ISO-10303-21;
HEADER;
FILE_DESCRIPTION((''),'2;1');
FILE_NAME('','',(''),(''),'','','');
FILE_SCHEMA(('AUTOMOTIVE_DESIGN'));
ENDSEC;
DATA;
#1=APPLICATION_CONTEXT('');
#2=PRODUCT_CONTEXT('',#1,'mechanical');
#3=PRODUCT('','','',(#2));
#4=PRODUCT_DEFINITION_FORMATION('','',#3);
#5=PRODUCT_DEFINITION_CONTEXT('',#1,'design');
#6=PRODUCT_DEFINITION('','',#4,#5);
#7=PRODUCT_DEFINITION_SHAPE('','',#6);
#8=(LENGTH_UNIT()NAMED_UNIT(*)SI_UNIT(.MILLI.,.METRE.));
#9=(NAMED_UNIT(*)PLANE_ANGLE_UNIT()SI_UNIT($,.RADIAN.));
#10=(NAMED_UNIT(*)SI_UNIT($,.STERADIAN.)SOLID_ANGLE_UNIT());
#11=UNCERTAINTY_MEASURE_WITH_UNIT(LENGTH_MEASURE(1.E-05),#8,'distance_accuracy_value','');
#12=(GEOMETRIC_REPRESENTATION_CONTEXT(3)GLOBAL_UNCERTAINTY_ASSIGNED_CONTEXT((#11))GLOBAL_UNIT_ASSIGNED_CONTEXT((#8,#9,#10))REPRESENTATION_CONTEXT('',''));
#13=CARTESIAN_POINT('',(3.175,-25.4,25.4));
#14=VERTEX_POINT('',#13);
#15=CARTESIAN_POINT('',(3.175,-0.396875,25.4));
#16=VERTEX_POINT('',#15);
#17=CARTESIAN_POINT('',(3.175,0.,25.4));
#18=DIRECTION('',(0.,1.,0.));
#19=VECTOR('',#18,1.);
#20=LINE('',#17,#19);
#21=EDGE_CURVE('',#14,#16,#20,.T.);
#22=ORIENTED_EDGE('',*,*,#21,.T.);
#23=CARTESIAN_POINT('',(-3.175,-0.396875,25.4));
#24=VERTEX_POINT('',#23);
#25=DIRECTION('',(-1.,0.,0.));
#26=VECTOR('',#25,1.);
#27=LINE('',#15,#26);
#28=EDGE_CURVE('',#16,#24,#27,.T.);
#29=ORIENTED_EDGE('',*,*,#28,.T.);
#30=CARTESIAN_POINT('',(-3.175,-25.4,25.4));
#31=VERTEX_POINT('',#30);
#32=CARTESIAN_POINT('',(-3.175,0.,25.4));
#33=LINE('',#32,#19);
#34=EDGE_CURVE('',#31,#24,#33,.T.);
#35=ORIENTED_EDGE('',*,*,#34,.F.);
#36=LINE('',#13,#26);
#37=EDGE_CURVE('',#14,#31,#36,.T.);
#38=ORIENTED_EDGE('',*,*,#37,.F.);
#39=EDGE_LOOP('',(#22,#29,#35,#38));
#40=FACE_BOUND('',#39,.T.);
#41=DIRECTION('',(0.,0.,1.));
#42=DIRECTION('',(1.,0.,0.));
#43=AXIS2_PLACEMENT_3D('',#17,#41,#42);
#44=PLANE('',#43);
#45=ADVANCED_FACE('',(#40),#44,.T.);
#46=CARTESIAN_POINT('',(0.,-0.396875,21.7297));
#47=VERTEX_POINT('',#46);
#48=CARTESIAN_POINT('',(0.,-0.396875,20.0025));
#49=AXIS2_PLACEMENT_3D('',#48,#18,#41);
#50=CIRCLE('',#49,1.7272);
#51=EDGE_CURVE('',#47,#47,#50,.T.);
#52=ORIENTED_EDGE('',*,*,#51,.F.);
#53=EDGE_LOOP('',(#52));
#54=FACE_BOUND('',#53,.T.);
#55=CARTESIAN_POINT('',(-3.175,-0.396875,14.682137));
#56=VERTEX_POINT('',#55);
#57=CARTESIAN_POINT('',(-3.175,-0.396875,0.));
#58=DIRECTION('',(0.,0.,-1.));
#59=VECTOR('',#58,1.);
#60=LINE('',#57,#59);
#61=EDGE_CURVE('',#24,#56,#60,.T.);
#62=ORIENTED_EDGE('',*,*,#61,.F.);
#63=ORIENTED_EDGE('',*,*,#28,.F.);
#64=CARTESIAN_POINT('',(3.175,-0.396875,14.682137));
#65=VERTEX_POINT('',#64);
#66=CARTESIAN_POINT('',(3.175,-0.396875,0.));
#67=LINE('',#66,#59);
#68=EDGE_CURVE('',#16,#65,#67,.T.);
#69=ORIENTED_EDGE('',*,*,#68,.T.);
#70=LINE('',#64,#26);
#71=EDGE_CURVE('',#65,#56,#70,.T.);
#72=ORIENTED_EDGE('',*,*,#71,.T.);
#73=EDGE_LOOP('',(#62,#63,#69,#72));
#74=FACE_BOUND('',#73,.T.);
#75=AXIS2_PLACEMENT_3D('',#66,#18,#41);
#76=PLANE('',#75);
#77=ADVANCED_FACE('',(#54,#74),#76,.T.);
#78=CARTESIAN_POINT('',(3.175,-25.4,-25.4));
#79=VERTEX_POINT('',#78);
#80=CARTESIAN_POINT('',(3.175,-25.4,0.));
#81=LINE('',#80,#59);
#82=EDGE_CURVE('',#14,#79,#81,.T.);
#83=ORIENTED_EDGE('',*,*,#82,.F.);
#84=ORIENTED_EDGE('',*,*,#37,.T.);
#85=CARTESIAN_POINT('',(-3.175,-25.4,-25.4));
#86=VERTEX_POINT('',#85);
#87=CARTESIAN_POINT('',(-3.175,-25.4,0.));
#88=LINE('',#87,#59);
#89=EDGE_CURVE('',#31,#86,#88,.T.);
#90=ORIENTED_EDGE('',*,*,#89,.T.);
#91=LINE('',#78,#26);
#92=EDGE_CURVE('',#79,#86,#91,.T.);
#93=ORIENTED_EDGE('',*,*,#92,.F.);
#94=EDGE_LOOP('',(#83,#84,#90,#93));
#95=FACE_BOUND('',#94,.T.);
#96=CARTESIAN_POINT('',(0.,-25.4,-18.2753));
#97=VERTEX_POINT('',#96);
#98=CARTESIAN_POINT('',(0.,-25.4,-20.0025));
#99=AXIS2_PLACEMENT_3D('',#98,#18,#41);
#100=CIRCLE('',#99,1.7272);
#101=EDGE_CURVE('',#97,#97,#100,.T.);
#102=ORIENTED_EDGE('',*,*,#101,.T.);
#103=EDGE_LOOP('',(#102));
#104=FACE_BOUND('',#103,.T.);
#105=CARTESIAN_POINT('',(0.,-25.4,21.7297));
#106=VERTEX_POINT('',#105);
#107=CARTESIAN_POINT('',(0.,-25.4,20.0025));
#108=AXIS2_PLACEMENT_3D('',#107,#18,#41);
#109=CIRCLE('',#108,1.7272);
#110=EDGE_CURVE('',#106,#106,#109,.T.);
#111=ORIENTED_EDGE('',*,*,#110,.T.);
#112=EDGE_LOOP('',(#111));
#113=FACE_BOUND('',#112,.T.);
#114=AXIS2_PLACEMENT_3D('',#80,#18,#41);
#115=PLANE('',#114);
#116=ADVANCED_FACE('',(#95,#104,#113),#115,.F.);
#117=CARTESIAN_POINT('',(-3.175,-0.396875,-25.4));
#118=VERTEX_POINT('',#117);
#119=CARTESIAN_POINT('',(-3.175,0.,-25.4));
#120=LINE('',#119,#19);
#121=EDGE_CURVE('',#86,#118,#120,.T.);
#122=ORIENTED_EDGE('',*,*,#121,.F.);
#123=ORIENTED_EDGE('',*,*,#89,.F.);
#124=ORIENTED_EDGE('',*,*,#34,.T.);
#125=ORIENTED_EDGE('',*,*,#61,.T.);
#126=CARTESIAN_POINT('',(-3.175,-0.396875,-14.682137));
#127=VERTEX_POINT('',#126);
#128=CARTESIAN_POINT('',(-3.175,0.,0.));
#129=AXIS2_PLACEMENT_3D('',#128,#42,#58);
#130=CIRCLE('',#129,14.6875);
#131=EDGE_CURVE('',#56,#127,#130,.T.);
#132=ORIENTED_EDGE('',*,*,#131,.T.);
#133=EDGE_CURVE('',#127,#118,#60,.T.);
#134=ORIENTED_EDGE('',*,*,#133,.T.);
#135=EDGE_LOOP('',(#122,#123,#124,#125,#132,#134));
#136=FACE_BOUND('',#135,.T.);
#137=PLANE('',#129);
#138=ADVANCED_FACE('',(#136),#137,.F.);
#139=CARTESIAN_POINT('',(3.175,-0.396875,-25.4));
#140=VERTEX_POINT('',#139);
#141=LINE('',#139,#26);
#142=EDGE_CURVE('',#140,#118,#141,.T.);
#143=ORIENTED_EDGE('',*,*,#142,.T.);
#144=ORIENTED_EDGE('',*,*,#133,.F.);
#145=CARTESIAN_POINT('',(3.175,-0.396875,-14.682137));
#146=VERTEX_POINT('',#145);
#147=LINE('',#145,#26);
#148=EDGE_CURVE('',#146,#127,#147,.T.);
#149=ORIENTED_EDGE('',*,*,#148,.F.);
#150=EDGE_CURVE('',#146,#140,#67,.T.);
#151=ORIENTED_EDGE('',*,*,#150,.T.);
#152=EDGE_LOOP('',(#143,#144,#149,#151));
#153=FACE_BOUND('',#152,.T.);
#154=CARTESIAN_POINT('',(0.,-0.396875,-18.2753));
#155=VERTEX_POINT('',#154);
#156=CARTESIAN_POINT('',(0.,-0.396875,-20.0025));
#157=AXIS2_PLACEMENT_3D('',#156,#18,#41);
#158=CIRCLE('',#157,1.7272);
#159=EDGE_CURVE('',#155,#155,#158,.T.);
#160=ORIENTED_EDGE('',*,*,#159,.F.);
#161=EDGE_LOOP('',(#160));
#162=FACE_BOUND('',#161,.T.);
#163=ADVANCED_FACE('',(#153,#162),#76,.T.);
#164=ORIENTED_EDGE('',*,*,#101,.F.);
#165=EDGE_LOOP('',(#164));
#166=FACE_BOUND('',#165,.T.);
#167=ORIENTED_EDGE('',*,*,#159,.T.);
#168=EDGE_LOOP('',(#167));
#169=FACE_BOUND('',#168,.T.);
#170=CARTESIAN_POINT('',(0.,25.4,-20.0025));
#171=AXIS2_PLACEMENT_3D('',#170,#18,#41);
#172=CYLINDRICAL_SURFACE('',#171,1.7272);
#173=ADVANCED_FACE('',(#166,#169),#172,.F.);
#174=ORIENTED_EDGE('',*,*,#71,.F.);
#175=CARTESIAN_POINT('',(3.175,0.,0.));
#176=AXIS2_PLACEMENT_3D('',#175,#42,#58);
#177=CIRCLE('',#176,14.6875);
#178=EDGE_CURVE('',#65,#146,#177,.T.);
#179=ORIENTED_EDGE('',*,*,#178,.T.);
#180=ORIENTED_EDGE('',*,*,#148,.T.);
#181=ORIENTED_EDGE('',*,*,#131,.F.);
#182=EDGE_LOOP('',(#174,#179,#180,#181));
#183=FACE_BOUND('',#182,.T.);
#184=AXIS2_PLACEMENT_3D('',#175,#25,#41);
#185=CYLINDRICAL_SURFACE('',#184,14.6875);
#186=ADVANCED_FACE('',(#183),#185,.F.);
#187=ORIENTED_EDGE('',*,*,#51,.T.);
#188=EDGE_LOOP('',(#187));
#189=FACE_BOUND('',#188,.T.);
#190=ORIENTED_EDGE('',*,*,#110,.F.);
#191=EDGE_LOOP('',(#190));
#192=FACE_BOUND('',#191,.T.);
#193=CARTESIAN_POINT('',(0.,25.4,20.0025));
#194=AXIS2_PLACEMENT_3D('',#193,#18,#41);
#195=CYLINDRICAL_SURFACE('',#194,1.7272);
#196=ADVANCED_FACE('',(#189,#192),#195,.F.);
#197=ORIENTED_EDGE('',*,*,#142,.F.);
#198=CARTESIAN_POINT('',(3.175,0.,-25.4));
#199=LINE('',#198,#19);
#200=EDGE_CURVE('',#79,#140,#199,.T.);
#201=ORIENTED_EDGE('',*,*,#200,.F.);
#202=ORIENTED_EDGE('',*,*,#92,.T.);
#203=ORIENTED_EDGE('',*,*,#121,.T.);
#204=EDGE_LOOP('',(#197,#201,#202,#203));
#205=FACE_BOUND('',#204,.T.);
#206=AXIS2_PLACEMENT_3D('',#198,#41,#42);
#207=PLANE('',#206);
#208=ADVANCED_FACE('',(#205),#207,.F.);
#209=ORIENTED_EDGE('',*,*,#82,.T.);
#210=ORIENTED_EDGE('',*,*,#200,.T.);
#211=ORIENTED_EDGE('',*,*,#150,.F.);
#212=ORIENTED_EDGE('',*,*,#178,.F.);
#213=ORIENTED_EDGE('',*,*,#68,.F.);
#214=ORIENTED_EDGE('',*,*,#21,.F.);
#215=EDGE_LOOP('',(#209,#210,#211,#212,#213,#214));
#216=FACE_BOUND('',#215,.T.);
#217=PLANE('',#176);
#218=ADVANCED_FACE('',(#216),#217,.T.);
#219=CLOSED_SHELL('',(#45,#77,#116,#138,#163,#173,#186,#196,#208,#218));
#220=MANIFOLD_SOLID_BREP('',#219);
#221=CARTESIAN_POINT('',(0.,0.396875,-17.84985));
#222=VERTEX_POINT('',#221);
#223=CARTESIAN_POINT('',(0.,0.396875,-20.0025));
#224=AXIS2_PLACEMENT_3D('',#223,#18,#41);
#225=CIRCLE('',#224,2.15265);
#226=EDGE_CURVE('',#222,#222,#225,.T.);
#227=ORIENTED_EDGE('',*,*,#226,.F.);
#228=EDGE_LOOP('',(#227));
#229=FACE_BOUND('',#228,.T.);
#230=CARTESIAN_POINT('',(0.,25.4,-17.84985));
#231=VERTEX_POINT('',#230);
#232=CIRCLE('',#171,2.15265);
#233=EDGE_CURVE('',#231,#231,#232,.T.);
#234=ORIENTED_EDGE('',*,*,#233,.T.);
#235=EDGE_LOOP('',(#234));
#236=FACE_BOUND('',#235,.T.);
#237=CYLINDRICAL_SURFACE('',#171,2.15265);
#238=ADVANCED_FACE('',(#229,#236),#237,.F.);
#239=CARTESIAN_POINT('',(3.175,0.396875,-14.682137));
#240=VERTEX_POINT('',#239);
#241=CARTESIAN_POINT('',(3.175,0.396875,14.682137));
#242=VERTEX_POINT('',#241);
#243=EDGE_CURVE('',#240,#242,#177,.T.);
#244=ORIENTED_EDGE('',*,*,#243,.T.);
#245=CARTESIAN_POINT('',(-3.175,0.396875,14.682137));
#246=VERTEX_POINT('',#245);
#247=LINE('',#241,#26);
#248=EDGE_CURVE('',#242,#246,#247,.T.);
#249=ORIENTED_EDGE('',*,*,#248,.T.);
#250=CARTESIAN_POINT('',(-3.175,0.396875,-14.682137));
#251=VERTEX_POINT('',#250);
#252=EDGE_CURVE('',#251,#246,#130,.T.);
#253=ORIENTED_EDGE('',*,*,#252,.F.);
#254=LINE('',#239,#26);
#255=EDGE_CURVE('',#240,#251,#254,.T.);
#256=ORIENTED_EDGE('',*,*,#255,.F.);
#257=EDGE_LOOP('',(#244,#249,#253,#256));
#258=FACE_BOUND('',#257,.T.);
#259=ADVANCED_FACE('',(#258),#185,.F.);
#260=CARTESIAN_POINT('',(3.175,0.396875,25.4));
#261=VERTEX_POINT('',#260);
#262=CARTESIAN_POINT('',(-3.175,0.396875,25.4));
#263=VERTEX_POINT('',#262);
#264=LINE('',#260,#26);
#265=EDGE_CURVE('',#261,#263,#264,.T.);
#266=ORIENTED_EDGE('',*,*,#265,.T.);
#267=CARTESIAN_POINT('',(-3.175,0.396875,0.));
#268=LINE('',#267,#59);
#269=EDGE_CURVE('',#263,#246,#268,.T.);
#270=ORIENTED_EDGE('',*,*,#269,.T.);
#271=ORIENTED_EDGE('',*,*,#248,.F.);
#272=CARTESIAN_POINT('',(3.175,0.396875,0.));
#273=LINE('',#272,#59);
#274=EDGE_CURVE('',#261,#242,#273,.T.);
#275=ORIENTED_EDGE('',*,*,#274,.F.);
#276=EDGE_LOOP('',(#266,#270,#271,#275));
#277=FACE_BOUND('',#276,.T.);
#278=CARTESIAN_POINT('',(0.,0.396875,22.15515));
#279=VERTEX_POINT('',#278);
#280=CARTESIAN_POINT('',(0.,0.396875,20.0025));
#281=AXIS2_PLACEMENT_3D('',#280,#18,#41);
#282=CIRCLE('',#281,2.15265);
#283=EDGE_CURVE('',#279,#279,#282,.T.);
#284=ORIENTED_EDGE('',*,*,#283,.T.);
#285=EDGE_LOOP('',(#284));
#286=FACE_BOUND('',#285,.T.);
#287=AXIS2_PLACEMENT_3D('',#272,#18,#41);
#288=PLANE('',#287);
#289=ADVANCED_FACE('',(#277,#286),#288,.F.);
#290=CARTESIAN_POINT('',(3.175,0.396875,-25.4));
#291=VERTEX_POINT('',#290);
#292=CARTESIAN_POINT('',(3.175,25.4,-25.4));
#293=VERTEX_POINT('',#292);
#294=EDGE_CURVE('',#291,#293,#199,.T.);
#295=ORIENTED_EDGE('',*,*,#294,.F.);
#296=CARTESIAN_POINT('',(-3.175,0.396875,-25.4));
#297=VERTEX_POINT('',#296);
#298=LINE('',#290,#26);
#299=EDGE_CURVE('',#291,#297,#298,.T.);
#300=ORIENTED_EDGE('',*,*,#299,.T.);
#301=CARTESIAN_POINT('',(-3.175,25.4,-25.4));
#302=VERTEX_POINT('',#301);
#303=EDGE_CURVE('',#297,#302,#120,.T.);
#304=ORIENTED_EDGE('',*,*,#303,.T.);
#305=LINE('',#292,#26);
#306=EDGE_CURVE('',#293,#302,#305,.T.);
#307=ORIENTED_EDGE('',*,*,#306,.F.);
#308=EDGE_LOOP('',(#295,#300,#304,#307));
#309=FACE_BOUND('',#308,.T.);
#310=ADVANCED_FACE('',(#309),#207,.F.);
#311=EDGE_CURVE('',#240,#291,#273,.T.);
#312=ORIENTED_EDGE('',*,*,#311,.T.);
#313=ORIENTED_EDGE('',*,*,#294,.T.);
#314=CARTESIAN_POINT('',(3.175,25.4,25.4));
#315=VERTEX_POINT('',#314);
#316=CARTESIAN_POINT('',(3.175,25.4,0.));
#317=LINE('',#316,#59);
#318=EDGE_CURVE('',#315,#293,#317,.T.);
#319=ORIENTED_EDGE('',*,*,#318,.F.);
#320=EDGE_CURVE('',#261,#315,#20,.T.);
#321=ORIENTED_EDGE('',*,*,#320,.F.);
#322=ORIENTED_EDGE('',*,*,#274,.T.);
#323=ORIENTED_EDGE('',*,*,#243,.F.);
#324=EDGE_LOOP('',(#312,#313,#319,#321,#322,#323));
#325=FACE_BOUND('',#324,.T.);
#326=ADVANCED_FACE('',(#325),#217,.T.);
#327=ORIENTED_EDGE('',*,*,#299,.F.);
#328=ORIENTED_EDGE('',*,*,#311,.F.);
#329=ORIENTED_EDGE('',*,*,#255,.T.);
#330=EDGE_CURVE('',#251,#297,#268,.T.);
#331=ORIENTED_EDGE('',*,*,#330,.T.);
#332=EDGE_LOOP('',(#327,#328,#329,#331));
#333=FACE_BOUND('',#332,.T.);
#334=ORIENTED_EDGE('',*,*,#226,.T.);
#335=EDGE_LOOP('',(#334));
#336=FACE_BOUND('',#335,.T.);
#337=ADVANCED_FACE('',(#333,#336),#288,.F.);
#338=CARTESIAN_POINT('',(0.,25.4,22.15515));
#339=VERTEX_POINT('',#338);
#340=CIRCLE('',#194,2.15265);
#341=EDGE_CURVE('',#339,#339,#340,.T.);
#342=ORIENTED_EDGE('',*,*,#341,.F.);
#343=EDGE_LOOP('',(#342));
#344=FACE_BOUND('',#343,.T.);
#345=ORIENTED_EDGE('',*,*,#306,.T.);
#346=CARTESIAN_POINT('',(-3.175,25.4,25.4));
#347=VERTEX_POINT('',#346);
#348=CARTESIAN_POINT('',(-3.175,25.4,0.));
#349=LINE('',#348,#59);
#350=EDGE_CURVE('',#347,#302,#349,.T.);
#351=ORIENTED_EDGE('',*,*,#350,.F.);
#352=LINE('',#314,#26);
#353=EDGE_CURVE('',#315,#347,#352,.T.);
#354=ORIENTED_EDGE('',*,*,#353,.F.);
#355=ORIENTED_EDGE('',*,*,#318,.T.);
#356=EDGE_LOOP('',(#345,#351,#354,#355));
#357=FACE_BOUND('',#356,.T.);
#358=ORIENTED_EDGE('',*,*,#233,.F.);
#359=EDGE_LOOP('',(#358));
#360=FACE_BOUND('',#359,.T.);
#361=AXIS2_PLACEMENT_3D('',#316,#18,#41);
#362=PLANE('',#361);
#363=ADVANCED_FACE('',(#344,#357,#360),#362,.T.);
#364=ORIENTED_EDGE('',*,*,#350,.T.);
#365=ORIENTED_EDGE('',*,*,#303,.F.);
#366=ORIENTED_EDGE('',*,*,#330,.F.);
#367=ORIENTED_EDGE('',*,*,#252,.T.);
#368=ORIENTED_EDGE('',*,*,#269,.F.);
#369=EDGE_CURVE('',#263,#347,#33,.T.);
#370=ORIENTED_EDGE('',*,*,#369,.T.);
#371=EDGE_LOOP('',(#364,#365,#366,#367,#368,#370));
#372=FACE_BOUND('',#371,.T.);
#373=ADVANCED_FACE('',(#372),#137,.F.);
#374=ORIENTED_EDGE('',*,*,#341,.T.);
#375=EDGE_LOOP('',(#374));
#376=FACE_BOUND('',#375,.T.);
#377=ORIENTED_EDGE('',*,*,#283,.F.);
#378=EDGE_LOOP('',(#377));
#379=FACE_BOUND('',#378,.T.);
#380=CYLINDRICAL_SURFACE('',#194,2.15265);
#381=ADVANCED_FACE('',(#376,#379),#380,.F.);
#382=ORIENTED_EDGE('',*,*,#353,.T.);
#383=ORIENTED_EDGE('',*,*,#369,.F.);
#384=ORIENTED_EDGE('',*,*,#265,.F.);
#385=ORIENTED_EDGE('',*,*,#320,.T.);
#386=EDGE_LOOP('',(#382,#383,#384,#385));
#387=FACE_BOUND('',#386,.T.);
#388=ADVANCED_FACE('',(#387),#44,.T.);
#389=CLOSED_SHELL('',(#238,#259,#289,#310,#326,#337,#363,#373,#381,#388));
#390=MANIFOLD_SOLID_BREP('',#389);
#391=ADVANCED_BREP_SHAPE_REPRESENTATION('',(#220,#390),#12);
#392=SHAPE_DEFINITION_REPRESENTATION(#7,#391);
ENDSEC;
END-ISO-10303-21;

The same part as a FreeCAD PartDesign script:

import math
import FreeCAD as App
import Part
import Sketcher
Q = App.Units.Quantity


def add_polygon(sketch, points):
    """Adds a closed chain of lines whose ends are joined by coincident constraints."""
    first, n = sketch.GeometryCount, len(points)
    for a, b in zip(points, points[1:] + points[:1]):
        sketch.addGeometry(Part.LineSegment(App.Vector(*a, 0), App.Vector(*b, 0)), False)
    for i in range(n):
        sketch.addConstraint(Sketcher.Constraint("Coincident", first + i, 2, first + (i + 1) % n, 1))

doc = App.newDocument("Part")
body = doc.addObject("PartDesign::Body", "Body")

# Sketch on YZ plane
sketch1 = body.newObject("Sketcher::SketchObject", "Sketch")
sketch1.AttachmentSupport = (doc.getObject("YZ_Plane"), [""])
sketch1.MapMode = "FlatFace"
sketch1.addGeometry([
    Part.LineSegment(App.Vector(25, 25, 0), App.Vector(0, 25, 0)),  # 0
    Part.LineSegment(App.Vector(0, 25, 0), App.Vector(0, 15, 0)),  # 1
    Part.ArcOfCircle(Part.Circle(App.Vector(0, 0, 0), App.Vector(0, 0, 1), 15), math.radians(-88), math.radians(88)),  # 2
    Part.LineSegment(App.Vector(0, -15, 0), App.Vector(0, -25, 0)),  # 3
    Part.LineSegment(App.Vector(0, -25, 0), App.Vector(25, -25, 0)),  # 4
    Part.LineSegment(App.Vector(25, -25, 0), App.Vector(25, 25, 0)),  # 5
], False)
sketch1.addConstraint([
    Sketcher.Constraint("Coincident", 0, 2, 1, 1),
    Sketcher.Constraint("Coincident", 1, 2, 2, 2),
    Sketcher.Constraint("Coincident", 2, 1, 3, 1),
    Sketcher.Constraint("Coincident", 3, 2, 4, 1),
    Sketcher.Constraint("Coincident", 4, 2, 5, 1),
    Sketcher.Constraint("Coincident", 5, 2, 0, 1),
    Sketcher.Constraint("Horizontal", 0),
    Sketcher.Constraint("Vertical", 1),
    Sketcher.Constraint("Vertical", 3),
    Sketcher.Constraint("Horizontal", 4),
    Sketcher.Constraint("Vertical", 5),
    Sketcher.Constraint("Coincident", 2, 3, -1, 1),
    Sketcher.Constraint("Symmetric", 0, 2, 3, 2, -1),
    Sketcher.Constraint("DistanceY", 5, 1, 5, 2, Q("2 in")),
    Sketcher.Constraint("DistanceX", -1, 1, 4, 2, Q("1 in")),
    Sketcher.Constraint("DistanceX", 0, 2, 0, 1, Q("0.984375 in")),
    Sketcher.Constraint("Radius", 2, 14.6875),
])
pad1 = body.newObject("PartDesign::Pad", "Pad")
pad1.Profile = sketch1
pad1.Length = Q("0.25 in")
pad1.Midplane = True

# Sketch on YZ plane
sketch2 = body.newObject("Sketcher::SketchObject", "Sketch001")
sketch2.AttachmentSupport = (doc.getObject("YZ_Plane"), [""])
sketch2.MapMode = "FlatFace"
add_polygon(sketch2, [(0.4, 20), (25.4, 20), (25.4, 22.2), (0.4, 22.2)])  # lines 0-3
sketch2.addGeometry(Part.LineSegment(App.Vector(25.4, 20, 0), App.Vector(0.4, 20, 0)), True)  # axis
sketch2.addConstraint([
    Sketcher.Constraint("Horizontal", 0),
    Sketcher.Constraint("Vertical", 1),
    Sketcher.Constraint("Horizontal", 2),
    Sketcher.Constraint("Vertical", 3),
    Sketcher.Constraint("Horizontal", 4),
    Sketcher.Constraint("Coincident", 4, 1, 0, 2),
    Sketcher.Constraint("Vertical", 2, 2, 4, 2),
    Sketcher.Constraint("DistanceX", -1, 1, 0, 2, Q("1 in")),
    Sketcher.Constraint("DistanceX", 0, 1, 0, 2, Q("0.984375 in")),
    Sketcher.Constraint("DistanceY", -1, 1, 0, 2, Q("0.7875 in")),
    Sketcher.Constraint("DistanceY", 1, 1, 1, 2, 2.15265),
])
groove = body.newObject("PartDesign::Groove", "Groove")
groove.Profile = sketch2
groove.ReferenceAxis = (sketch2, ["Axis0"])
groove.Angle = 360
doc.recompute()

linearpattern = body.newObject("PartDesign::LinearPattern", "LinearPattern")
linearpattern.Originals = [groove]
linearpattern.Direction = (doc.getObject("Z_Axis"), [""])
linearpattern.Mode = "offset"
linearpattern.Offset = Q("1.575 in")
linearpattern.Occurrences = 2
linearpattern.Reversed = True
body.Tip = linearpattern
body2 = doc.addObject("PartDesign::Body", "Body001")

# Sketch on YZ plane
sketch3 = body2.newObject("Sketcher::SketchObject", "Sketch002")
sketch3.AttachmentSupport = (doc.getObject("YZ_Plane001"), [""])
sketch3.MapMode = "FlatFace"
sketch3.addGeometry([
    Part.LineSegment(App.Vector(0, 15, 0), App.Vector(0, 25, 0)),  # 0
    Part.LineSegment(App.Vector(0, 25, 0), App.Vector(-25, 25, 0)),  # 1
    Part.LineSegment(App.Vector(-25, 25, 0), App.Vector(-25, -25, 0)),  # 2
    Part.LineSegment(App.Vector(-25, -25, 0), App.Vector(0, -25, 0)),  # 3
    Part.LineSegment(App.Vector(0, -25, 0), App.Vector(0, -15, 0)),  # 4
    Part.ArcOfCircle(Part.Circle(App.Vector(0, 0, 0), App.Vector(0, 0, 1), 15), math.radians(92), math.radians(268)),  # 5
], False)
sketch3.addConstraint([
    Sketcher.Constraint("Coincident", 0, 2, 1, 1),
    Sketcher.Constraint("Coincident", 1, 2, 2, 1),
    Sketcher.Constraint("Coincident", 2, 2, 3, 1),
    Sketcher.Constraint("Coincident", 3, 2, 4, 1),
    Sketcher.Constraint("Coincident", 4, 2, 5, 2),
    Sketcher.Constraint("Coincident", 5, 1, 0, 1),
    Sketcher.Constraint("Vertical", 0),
    Sketcher.Constraint("Horizontal", 1),
    Sketcher.Constraint("Vertical", 2),
    Sketcher.Constraint("Horizontal", 3),
    Sketcher.Constraint("Vertical", 4),
    Sketcher.Constraint("Coincident", 5, 3, -1, 1),
    Sketcher.Constraint("Symmetric", 0, 2, 3, 2, -1),
    Sketcher.Constraint("DistanceY", 2, 2, 2, 1, Q("2 in")),
    Sketcher.Constraint("DistanceX", 1, 2, -1, 1, Q("1 in")),
    Sketcher.Constraint("DistanceX", 1, 2, 1, 1, Q("0.984375 in")),
    Sketcher.Constraint("Radius", 5, 14.6875),
])
pad2 = body2.newObject("PartDesign::Pad", "Pad001")
pad2.Profile = sketch3
pad2.Length = Q("0.25 in")
pad2.Midplane = True

# Sketch on YZ plane
sketch4 = body2.newObject("Sketcher::SketchObject", "Sketch003")
sketch4.AttachmentSupport = (doc.getObject("YZ_Plane001"), [""])
sketch4.MapMode = "FlatFace"
add_polygon(sketch4, [(-25.4, 20), (25.4, 20), (25.4, 21.7), (-25.4, 21.7)])  # lines 0-3
sketch4.addGeometry(Part.LineSegment(App.Vector(25.4, 20, 0), App.Vector(-25.4, 20, 0)), True)  # axis
sketch4.addConstraint([
    Sketcher.Constraint("Horizontal", 0),
    Sketcher.Constraint("Vertical", 1),
    Sketcher.Constraint("Horizontal", 2),
    Sketcher.Constraint("Vertical", 3),
    Sketcher.Constraint("Horizontal", 4),
    Sketcher.Constraint("Coincident", 4, 1, 0, 2),
    Sketcher.Constraint("Vertical", 2, 2, 4, 2),
    Sketcher.Constraint("DistanceX", 0, 1, 0, 2, Q("2 in")),
    Sketcher.Constraint("DistanceX", -1, 1, 0, 2, Q("1 in")),
    Sketcher.Constraint("DistanceY", 1, 1, 1, 2, Q("0.068 in")),
    Sketcher.Constraint("DistanceY", -1, 1, 0, 2, Q("0.7875 in")),
])
groove2 = body2.newObject("PartDesign::Groove", "Groove001")
groove2.Profile = sketch4
groove2.ReferenceAxis = (sketch4, ["Axis0"])
groove2.Angle = 360
doc.recompute()

linearpattern2 = body2.newObject("PartDesign::LinearPattern", "LinearPattern001")
linearpattern2.Originals = [groove2]
linearpattern2.Direction = (doc.getObject("Z_Axis001"), [""])
linearpattern2.Mode = "offset"
linearpattern2.Offset = Q("1.575 in")
linearpattern2.Occurrences = 2
linearpattern2.Reversed = True
body2.Tip = linearpattern2

doc.recompute()
